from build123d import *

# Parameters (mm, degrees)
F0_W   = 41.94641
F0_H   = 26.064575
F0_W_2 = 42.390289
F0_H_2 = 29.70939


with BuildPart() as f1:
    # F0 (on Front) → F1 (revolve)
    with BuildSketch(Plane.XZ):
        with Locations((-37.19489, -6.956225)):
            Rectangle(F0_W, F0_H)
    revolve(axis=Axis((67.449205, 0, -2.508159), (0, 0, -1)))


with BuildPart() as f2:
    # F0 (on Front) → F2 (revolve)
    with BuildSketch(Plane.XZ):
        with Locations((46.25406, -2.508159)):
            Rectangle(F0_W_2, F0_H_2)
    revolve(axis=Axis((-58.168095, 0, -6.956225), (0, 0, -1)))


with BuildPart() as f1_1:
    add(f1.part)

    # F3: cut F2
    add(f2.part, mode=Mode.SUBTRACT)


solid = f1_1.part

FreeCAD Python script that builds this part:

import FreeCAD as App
import Part
import Sketcher

V = App.Vector
Q = App.Units.Quantity


def add_polygon(sketch, points):
    """Adds a closed chain of lines whose ends are joined by coincident constraints."""
    first, n = sketch.GeometryCount, len(points)
    for a, b in zip(points, points[1:] + points[:1]):
        sketch.addGeometry(Part.LineSegment(App.Vector(*a, 0), App.Vector(*b, 0)), False)
    for i in range(n):
        sketch.addConstraint(Sketcher.Constraint("Coincident", first + i, 2, first + (i + 1) % n, 1))

doc = App.newDocument("Part")
params = doc.addObject("Spreadsheet::Sheet", "Params")
for row, (alias, value) in enumerate([
    ("revolution_angle", "360 deg"),
    ("revolution2_angle", "360 deg"),
], start=1):
    params.set(f"A{row}", alias)
    params.set(f"B{row}", "=" + value)
    params.setAlias(f"B{row}", alias)

body = doc.addObject("PartDesign::Body", "Body")

# Sketch on XZ plane
sketch1 = body.newObject("Sketcher::SketchObject", "Sketch")
sketch1.AttachmentSupport = (doc.getObject("XZ_Plane"), [""])
sketch1.MapMode = "FlatFace"
add_polygon(sketch1, [(-58, 6), (-58, -20), (-16, -20), (-16, 6)])  # lines 0-3
sketch1.addGeometry(Part.LineSegment(V(67, 6, 0), V(67, -20, 0)), True)  # axis
sketch1.addConstraint(Sketcher.Constraint("Vertical", 0))
sketch1.addConstraint(Sketcher.Constraint("Horizontal", 1))
sketch1.addConstraint(Sketcher.Constraint("Vertical", 2))
sketch1.addConstraint(Sketcher.Constraint("Horizontal", 3))
sketch1.addConstraint(Sketcher.Constraint("Vertical", 4))
sketch1.addConstraint(Sketcher.Constraint("Horizontal", 3, 2, 4, 1))
sketch1.addConstraint(Sketcher.Constraint("Horizontal", 1, 2, 4, 2))
sketch1.addConstraint(Sketcher.Constraint("DistanceX", 1, 1, 1, 2, Q("41.94641 mm")))
sketch1.addConstraint(Sketcher.Constraint("DistanceX", 3, 2, 4, 1, Q("125.6173 mm")))
sketch1.addConstraint(Sketcher.Constraint("DistanceY", 0, 2, 0, 1, Q("26.064575 mm")))
sketch1.addConstraint(Sketcher.Constraint("DistanceX", 0, 2, -1, 1, Q("58.168095 mm")))
sketch1.addConstraint(Sketcher.Constraint("DistanceY", 0, 2, -1, 1, Q("19.988512 mm")))
revolution = body.newObject("PartDesign::Revolution", "Revolution")
revolution.Profile = sketch1
revolution.ReferenceAxis = (sketch1, ["Axis0"])
revolution.setExpression("Angle", "Params.revolution_angle")
body2 = doc.addObject("PartDesign::Body", "Body001")

# Sketch on XZ plane
sketch2 = body2.newObject("Sketcher::SketchObject", "Sketch001")
sketch2.AttachmentSupport = (doc.getObject("XZ_Plane001"), [""])
sketch2.MapMode = "FlatFace"
add_polygon(sketch2, [(25, 12), (25, -17), (67, -17), (67, 12)])  # lines 0-3
sketch2.addGeometry(Part.LineSegment(V(-58, 12, 0), V(-58, -17, 0)), True)  # axis
sketch2.addConstraint(Sketcher.Constraint("Vertical", 0))
sketch2.addConstraint(Sketcher.Constraint("Horizontal", 1))
sketch2.addConstraint(Sketcher.Constraint("Vertical", 2))
sketch2.addConstraint(Sketcher.Constraint("Horizontal", 3))
sketch2.addConstraint(Sketcher.Constraint("Vertical", 4))
sketch2.addConstraint(Sketcher.Constraint("Horizontal", 3, 2, 4, 1))
sketch2.addConstraint(Sketcher.Constraint("Horizontal", 1, 2, 4, 2))
sketch2.addConstraint(Sketcher.Constraint("DistanceX", 1, 1, 1, 2, Q("42.390289 mm")))
sketch2.addConstraint(Sketcher.Constraint("DistanceY", 0, 2, 0, 1, Q("29.70939 mm")))
sketch2.addConstraint(Sketcher.Constraint("DistanceX", 4, 1, 2, 2, Q("125.6173 mm")))
sketch2.addConstraint(Sketcher.Constraint("DistanceX", -1, 1, 0, 2, Q("25.058916 mm")))
sketch2.addConstraint(Sketcher.Constraint("DistanceY", 0, 2, -1, 1, Q("17.362854 mm")))
revolution2 = body2.newObject("PartDesign::Revolution", "Revolution001")
revolution2.Profile = sketch2
revolution2.ReferenceAxis = (sketch2, ["Axis0"])
revolution2.setExpression("Angle", "Params.revolution2_angle")
doc.recompute()

boolean = body.newObject("PartDesign::Boolean", "Boolean")
boolean.Type = "Cut"
boolean.addObjects([body2])

doc.recompute()
